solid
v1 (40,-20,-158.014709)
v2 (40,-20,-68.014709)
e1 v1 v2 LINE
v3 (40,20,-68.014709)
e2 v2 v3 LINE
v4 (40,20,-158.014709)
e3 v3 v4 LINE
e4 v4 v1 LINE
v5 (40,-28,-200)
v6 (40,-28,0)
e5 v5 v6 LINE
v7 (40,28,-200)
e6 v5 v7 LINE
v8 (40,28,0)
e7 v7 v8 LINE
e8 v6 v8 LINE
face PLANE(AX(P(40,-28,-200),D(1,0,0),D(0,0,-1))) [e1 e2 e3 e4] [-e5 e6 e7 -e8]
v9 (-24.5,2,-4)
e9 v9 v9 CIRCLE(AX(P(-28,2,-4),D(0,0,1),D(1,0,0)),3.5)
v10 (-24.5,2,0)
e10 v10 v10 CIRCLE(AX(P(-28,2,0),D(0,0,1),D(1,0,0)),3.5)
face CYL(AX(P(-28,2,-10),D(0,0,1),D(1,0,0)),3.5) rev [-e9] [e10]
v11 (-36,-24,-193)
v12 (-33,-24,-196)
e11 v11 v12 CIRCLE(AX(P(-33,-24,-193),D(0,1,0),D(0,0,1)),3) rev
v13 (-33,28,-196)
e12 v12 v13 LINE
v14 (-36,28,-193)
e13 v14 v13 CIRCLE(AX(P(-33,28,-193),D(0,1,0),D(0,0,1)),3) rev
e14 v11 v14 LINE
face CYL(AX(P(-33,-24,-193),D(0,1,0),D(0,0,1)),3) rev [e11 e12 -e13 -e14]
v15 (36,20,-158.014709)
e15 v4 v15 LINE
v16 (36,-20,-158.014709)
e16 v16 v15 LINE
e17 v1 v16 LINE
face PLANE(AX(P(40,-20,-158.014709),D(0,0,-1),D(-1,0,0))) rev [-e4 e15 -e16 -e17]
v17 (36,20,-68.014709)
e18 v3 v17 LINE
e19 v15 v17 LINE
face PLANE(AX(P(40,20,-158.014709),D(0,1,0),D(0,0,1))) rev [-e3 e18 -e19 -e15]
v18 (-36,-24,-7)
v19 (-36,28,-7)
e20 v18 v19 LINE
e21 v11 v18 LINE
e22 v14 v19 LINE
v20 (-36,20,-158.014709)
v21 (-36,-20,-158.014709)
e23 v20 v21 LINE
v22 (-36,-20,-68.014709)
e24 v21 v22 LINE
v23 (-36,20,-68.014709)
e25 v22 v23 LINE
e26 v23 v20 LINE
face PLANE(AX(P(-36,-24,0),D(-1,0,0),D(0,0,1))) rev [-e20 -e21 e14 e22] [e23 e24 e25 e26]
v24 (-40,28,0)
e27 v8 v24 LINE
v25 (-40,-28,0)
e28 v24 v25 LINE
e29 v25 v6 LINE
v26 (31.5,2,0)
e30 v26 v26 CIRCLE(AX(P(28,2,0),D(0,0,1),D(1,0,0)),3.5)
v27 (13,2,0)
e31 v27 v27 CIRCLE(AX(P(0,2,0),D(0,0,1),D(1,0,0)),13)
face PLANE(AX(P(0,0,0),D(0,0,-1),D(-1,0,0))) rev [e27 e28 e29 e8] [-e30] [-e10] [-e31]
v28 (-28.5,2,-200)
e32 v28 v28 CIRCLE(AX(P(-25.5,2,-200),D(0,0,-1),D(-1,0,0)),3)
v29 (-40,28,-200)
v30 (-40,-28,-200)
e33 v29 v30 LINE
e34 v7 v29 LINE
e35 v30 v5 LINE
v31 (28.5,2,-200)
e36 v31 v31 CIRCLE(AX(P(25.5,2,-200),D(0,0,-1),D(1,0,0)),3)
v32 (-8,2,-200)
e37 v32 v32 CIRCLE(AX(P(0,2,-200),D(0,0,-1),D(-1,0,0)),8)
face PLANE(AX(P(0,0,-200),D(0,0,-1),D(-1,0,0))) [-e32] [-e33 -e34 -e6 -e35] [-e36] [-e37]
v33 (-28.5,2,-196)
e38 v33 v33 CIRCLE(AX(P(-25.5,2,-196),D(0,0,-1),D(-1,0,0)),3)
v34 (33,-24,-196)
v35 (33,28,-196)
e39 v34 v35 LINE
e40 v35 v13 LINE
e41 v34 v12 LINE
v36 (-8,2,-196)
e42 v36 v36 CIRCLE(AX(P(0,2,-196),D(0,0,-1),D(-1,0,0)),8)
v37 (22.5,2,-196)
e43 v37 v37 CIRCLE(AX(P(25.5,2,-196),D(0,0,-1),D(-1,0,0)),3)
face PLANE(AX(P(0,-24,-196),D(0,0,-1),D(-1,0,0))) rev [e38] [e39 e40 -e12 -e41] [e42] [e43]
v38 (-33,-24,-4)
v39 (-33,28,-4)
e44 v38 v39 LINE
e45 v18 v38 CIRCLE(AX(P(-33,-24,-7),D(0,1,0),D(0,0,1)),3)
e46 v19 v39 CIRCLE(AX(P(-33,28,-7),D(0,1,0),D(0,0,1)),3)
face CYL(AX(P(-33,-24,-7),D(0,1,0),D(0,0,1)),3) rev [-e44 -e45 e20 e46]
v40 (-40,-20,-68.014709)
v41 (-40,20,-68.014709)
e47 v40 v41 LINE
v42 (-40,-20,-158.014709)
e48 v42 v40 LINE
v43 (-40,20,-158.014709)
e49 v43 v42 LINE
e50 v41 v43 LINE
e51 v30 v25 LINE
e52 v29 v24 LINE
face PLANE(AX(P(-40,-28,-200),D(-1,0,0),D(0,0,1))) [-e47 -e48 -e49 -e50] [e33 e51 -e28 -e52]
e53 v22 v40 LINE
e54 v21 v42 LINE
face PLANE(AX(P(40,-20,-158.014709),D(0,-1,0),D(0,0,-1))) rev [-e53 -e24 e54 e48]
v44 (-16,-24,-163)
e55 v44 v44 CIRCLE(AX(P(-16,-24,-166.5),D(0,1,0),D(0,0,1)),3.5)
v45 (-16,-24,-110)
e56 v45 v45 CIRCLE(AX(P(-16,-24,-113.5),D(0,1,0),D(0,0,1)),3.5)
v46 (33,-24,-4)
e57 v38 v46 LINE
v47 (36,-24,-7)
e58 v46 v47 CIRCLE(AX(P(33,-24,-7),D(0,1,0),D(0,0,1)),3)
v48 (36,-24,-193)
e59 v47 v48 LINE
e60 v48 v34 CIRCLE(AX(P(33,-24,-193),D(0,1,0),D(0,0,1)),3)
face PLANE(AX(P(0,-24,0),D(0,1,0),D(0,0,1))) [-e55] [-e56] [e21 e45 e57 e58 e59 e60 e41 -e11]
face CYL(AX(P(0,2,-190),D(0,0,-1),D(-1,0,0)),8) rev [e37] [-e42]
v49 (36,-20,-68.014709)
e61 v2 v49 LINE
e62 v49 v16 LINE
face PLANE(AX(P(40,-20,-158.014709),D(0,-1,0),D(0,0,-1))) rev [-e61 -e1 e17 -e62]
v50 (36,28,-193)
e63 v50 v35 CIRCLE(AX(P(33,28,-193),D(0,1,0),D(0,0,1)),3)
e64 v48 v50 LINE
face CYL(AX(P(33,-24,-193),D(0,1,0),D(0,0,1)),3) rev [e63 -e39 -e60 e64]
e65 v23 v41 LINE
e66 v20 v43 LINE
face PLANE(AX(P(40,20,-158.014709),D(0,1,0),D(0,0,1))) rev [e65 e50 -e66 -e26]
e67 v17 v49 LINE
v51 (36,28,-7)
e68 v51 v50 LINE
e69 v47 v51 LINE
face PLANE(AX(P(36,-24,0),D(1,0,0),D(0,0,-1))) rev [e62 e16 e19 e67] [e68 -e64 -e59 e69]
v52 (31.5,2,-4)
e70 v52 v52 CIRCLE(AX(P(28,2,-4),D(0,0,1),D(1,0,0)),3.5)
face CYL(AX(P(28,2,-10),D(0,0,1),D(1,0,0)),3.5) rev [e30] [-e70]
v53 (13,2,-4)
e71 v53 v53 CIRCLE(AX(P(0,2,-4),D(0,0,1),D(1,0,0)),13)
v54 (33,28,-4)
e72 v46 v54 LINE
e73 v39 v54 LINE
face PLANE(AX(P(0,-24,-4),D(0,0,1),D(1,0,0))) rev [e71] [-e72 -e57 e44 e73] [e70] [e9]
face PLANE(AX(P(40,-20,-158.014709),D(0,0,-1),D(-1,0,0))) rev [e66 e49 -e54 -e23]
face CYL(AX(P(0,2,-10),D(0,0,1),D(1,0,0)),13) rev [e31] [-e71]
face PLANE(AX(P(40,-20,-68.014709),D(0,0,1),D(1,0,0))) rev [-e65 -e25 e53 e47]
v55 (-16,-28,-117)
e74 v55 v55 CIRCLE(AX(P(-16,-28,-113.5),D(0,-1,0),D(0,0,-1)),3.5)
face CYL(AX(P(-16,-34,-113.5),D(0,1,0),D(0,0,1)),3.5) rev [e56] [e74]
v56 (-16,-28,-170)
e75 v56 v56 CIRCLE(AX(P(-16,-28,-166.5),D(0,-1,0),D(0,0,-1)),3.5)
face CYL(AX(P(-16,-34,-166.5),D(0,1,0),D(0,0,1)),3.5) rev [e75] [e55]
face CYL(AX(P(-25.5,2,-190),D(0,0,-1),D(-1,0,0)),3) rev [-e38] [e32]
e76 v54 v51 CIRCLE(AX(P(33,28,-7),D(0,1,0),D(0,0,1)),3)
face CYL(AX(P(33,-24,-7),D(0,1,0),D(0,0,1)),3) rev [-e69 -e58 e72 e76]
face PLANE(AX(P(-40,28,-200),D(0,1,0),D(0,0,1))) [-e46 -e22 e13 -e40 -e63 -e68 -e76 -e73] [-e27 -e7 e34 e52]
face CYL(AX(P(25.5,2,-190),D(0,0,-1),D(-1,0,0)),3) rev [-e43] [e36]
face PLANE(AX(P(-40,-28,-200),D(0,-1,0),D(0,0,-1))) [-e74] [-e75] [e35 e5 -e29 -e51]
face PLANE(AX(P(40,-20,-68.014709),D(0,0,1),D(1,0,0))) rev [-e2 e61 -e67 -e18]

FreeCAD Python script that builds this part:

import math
import FreeCAD as App
import Part
import Sketcher

V = App.Vector
Q = App.Units.Quantity

doc = App.newDocument("Part")
body = doc.addObject("PartDesign::Body", "Body")

sketch1 = body.newObject("Sketcher::SketchObject", "Sketch")
sketch1.AttachmentSupport = (doc.getObject("XY_Plane"), [""])
sketch1.MapMode = "FlatFace"
sketch1.addGeometry([
    Part.LineSegment(V(-40, 28, 0), V(-40, -28, 0)),
    Part.LineSegment(V(-40, -28, 0), V(40, -28, 0)),
    Part.LineSegment(V(40, -28, 0), V(40, 28, 0)),
    Part.LineSegment(V(40, 28, 0), V(-40, 28, 0)),
], False)
sketch1.addConstraint([
    Sketcher.Constraint("Coincident", 0, 2, 1, 1),
    Sketcher.Constraint("Coincident", 1, 2, 2, 1),
    Sketcher.Constraint("Coincident", 2, 2, 3, 1),
    Sketcher.Constraint("Coincident", 3, 2, 0, 1),
    Sketcher.Constraint("Vertical", 0),
    Sketcher.Constraint("Horizontal", 1),
    Sketcher.Constraint("Vertical", 2),
    Sketcher.Constraint("Horizontal", 3),
    Sketcher.Constraint("Symmetric", 0, 2, 2, 2, -1, 1),
    Sketcher.Constraint("DistanceX", 1, 1, 1, 2, Q("80 mm")),
    Sketcher.Constraint("DistanceY", 0, 2, 0, 1, Q("56 mm")),
])
pad1 = body.newObject("PartDesign::Pad", "Pad")
pad1.Profile = sketch1
pad1.Length = 200
pad1.Reversed = True

sketch2 = body.newObject("Sketcher::SketchObject", "Sketch001")
sketch2.AttachmentSupport = (doc.getObject("XZ_Plane"), [""])
sketch2.MapMode = "FlatFace"
sketch2.AttachmentOffset = App.Placement(V(0, 0, -28), App.Rotation())
sketch2.addGeometry([
    Part.ArcOfCircle(Part.Circle(V(-33, -193, 0), V(0, 0, 1), 3), math.radians(180), math.radians(270)),
    Part.LineSegment(V(-36, -193, 0), V(-36, -7, 0)),
    Part.ArcOfCircle(Part.Circle(V(-33, -7, 0), V(0, 0, 1), 3), math.radians(90), math.radians(180)),
    Part.LineSegment(V(-33, -4, 0), V(33, -4, 0)),
    Part.ArcOfCircle(Part.Circle(V(33, -7, 0), V(0, 0, 1), 3), math.radians(0), math.radians(90)),
    Part.LineSegment(V(36, -7, 0), V(36, -193, 0)),
    Part.ArcOfCircle(Part.Circle(V(33, -193, 0), V(0, 0, 1), 3), math.radians(-90), math.radians(0)),
    Part.LineSegment(V(33, -196, 0), V(-33, -196, 0)),
], False)
sketch2.addConstraint([
    Sketcher.Constraint("Tangent", 0, 1, 1, 1),
    Sketcher.Constraint("Tangent", 1, 2, 2, 2),
    Sketcher.Constraint("Tangent", 2, 1, 3, 1),
    Sketcher.Constraint("Tangent", 3, 2, 4, 2),
    Sketcher.Constraint("Tangent", 4, 1, 5, 1),
    Sketcher.Constraint("Tangent", 5, 2, 6, 2),
    Sketcher.Constraint("Tangent", 6, 1, 7, 1),
    Sketcher.Constraint("Tangent", 7, 2, 0, 2),
    Sketcher.Constraint("Vertical", 1),
    Sketcher.Constraint("Horizontal", 3),
    Sketcher.Constraint("Vertical", 5),
    Sketcher.Constraint("Horizontal", 7),
    Sketcher.Constraint("Equal", 0, 2),
    Sketcher.Constraint("Equal", 2, 4),
    Sketcher.Constraint("Equal", 4, 6),
    Sketcher.Constraint("Radius", 0, Q("3 mm")),
    Sketcher.Constraint("DistanceX", 3, 1, 3, 2, Q("66 mm")),
    Sketcher.Constraint("DistanceY", 1, 1, 1, 2, Q("186 mm")),
    Sketcher.Constraint("DistanceX", 0, 3, -1, 1, Q("33 mm")),
    Sketcher.Constraint("DistanceY", 0, 3, -1, 1, Q("193 mm")),
])
pocket1 = body.newObject("PartDesign::Pocket", "Pocket")
pocket1.Profile = sketch2
pocket1.Length = 52
pocket1.Reversed = True

sketch3 = body.newObject("Sketcher::SketchObject", "Sketch002")
sketch3.AttachmentSupport = (doc.getObject("XY_Plane"), [""])
sketch3.MapMode = "FlatFace"
sketch3.addGeometry([
    Part.Circle(V(-28, 2, 0), V(0, 0, 1), 3.5),
    Part.Circle(V(0, 2, 0), V(0, 0, 1), 13),
    Part.Circle(V(28, 2, 0), V(0, 0, 1), 3.5),
], False)
sketch3.addConstraint([
    Sketcher.Constraint("Equal", 0, 2),
    Sketcher.Constraint("Symmetric", 0, 3, 2, 3, -2),
    Sketcher.Constraint("PointOnObject", 1, 3, -2),
    Sketcher.Constraint("Horizontal", 0, 3, 1, 3),
    Sketcher.Constraint("Diameter", 0, Q("7 mm")),
    Sketcher.Constraint("Diameter", 1, Q("26 mm")),
    Sketcher.Constraint("DistanceX", 0, 3, -1, 1, Q("28 mm")),
    Sketcher.Constraint("DistanceY", -1, 1, 0, 3, Q("2 mm")),
])
pocket2 = body.newObject("PartDesign::Pocket", "Pocket001")
pocket2.Profile = sketch3
pocket2.Length = 10

sketch4 = body.newObject("Sketcher::SketchObject", "Sketch003")
sketch4.AttachmentSupport = (doc.getObject("XY_Plane"), [""])
sketch4.MapMode = "FlatFace"
sketch4.AttachmentOffset = App.Placement(V(0, 0, -200), App.Rotation())
sketch4.addGeometry([
    Part.Circle(V(0, 2, 0), V(0, 0, 1), 8),
    Part.Circle(V(-25.5, 2, 0), V(0, 0, 1), 3),
    Part.Circle(V(25.5, 2, 0), V(0, 0, 1), 3),
], False)
sketch4.addConstraint([
    Sketcher.Constraint("Equal", 1, 2),
    Sketcher.Constraint("Symmetric", 1, 3, 2, 3, -2),
    Sketcher.Constraint("PointOnObject", 0, 3, -2),
    Sketcher.Constraint("Horizontal", 0, 3, 1, 3),
    Sketcher.Constraint("Diameter", 0, Q("16 mm")),
    Sketcher.Constraint("Diameter", 1, Q("6 mm")),
    Sketcher.Constraint("DistanceY", -1, 1, 0, 3, Q("2 mm")),
    Sketcher.Constraint("DistanceX", 1, 3, 2, 3, Q("51 mm")),
])
pocket3 = body.newObject("PartDesign::Pocket", "Pocket002")
pocket3.Profile = sketch4
pocket3.Length = 10
pocket3.Reversed = True

sketch5 = body.newObject("Sketcher::SketchObject", "Sketch004")
sketch5.AttachmentSupport = (doc.getObject("XZ_Plane"), [""])
sketch5.MapMode = "FlatFace"
sketch5.AttachmentOffset = App.Placement(V(0, 0, 24), App.Rotation())
sketch5.addGeometry([
    Part.Circle(V(-16, -166.5, 0), V(0, 0, 1), 3.5),
    Part.Circle(V(-16, -113.5, 0), V(0, 0, 1), 3.5),
], False)
sketch5.addConstraint([
    Sketcher.Constraint("Equal", 0, 1),
    Sketcher.Constraint("Vertical", 0, 3, 1, 3),
    Sketcher.Constraint("Diameter", 0, Q("7 mm")),
    Sketcher.Constraint("DistanceX", 0, 3, -1, 1, Q("16 mm")),
    Sketcher.Constraint("DistanceY", 0, 3, 1, 3, Q("53 mm")),
    Sketcher.Constraint("DistanceY", 0, 3, -1, 1, Q("166.5 mm")),
])
pocket4 = body.newObject("PartDesign::Pocket", "Pocket003")
pocket4.Profile = sketch5
pocket4.Length = 10
pocket4.Reversed = True

sketch6 = body.newObject("Sketcher::SketchObject", "Sketch005")
sketch6.AttachmentSupport = (doc.getObject("YZ_Plane"), [""])
sketch6.MapMode = "FlatFace"
sketch6.AttachmentOffset = App.Placement(V(0, 0, -40), App.Rotation())
sketch6.addGeometry([
    Part.LineSegment(V(20, -158, 0), V(-20, -158, 0)),
    Part.LineSegment(V(-20, -158, 0), V(-20, -68, 0)),
    Part.LineSegment(V(-20, -68, 0), V(20, -68, 0)),
    Part.LineSegment(V(20, -68, 0), V(20, -158, 0)),
], False)
sketch6.addConstraint([
    Sketcher.Constraint("Coincident", 0, 2, 1, 1),
    Sketcher.Constraint("Coincident", 1, 2, 2, 1),
    Sketcher.Constraint("Coincident", 2, 2, 3, 1),
    Sketcher.Constraint("Coincident", 3, 2, 0, 1),
    Sketcher.Constraint("Horizontal", 0),
    Sketcher.Constraint("Vertical", 1),
    Sketcher.Constraint("Horizontal", 2),
    Sketcher.Constraint("Vertical", 3),
    Sketcher.Constraint("DistanceX", 0, 2, 0, 1, Q("40 mm")),
    Sketcher.Constraint("DistanceY", 1, 1, 1, 2, Q("90 mm")),
    Sketcher.Constraint("DistanceX", 0, 2, -1, 1, Q("20 mm")),
    Sketcher.Constraint("DistanceY", 0, 2, -1, 1, Q("158.014709 mm")),
])
pocket5 = body.newObject("PartDesign::Pocket", "Pocket004")
pocket5.Profile = sketch6
pocket5.Type = "ThroughAll"
pocket5.Reversed = True

doc.recompute()
